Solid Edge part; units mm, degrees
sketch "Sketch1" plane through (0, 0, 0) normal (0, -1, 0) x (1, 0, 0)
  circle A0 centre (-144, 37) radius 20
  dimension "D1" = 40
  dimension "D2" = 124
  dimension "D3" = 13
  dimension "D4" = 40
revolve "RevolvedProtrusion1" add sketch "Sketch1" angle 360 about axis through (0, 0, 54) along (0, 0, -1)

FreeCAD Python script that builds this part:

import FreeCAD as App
import Part
import Sketcher
from FreeCAD import Vector
Q = App.Units.Quantity

doc = App.newDocument("Part")
params = doc.addObject("Spreadsheet::Sheet", "Params")
for row, (alias, value) in enumerate([
    ("sketch1_diameter", "40 mm"),
    ("revolution_angle", "360 deg"),
], start=1):
    params.set(f"A{row}", alias)
    params.set(f"B{row}", "=" + value)
    params.setAlias(f"B{row}", alias)

body = doc.addObject("PartDesign::Body", "Body")

sketch1 = body.newObject("Sketcher::SketchObject", "Sketch")
sketch1.AttachmentSupport = (doc.getObject("XZ_Plane"), [""])
sketch1.MapMode = "FlatFace"
sketch1.addGeometry(Part.Circle(Vector(-144, 37, 0), Vector(0, 0, 1), 20), False)
sketch1.addConstraint(Sketcher.Constraint("Diameter", 0, Q("40 mm")))
sketch1.addConstraint(Sketcher.Constraint("DistanceX", 0, 3, -1, 1, Q("144 mm")))
sketch1.addConstraint(Sketcher.Constraint("DistanceY", -1, 1, 0, 3, Q("37 mm")))
sketch1.setExpression("Constraints[0]", "Params.sketch1_diameter")
revolution = body.newObject("PartDesign::Revolution", "Revolution")
revolution.Profile = sketch1
revolution.ReferenceAxis = (sketch1, ["V_Axis"])
revolution.setExpression("Angle", "Params.revolution_angle")

doc.recompute()
